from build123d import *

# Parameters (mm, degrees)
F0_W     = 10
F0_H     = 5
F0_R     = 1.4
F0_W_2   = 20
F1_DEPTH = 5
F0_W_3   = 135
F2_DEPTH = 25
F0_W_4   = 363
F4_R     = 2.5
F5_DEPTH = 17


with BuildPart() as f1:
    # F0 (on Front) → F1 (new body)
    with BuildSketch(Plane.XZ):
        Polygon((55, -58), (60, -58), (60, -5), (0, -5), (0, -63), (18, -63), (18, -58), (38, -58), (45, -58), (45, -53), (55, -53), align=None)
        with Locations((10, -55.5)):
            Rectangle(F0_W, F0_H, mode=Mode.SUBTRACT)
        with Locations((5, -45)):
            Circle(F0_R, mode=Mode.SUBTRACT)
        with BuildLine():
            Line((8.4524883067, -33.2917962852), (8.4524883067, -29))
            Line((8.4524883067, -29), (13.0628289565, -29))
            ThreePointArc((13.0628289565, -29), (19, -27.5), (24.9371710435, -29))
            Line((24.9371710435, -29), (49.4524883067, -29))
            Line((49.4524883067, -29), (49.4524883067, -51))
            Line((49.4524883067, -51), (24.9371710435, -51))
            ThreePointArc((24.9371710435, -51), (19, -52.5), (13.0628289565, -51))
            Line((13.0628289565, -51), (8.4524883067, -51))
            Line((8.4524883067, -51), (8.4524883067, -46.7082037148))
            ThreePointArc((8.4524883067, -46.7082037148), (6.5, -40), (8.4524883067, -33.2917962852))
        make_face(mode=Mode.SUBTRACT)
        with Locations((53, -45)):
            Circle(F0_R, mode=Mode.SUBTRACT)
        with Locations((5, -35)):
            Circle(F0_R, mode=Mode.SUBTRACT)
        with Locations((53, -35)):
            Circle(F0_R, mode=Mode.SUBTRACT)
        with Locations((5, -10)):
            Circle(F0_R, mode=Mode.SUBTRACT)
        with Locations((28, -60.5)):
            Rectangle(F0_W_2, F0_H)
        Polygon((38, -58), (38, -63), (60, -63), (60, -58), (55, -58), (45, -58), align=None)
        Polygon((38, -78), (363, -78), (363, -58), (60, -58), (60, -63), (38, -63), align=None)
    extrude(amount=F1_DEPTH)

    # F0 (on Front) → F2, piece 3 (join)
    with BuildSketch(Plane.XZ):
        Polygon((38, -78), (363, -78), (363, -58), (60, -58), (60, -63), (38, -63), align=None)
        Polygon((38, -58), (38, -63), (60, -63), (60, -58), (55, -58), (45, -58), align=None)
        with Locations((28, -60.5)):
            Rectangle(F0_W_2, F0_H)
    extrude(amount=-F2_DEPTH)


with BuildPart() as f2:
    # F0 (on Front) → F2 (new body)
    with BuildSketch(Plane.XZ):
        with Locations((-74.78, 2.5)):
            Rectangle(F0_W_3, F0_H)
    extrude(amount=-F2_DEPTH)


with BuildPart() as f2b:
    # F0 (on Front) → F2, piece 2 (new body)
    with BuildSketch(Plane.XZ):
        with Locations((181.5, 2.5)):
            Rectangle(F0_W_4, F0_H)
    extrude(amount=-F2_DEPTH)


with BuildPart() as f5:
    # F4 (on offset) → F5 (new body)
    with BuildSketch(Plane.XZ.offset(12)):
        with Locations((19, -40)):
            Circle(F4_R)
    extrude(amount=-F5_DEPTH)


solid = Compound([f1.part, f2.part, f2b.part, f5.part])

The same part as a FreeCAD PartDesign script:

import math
import FreeCAD as App
import Part
import Sketcher

V = App.Vector


def add_polygon(sketch, points):
    """Adds a closed chain of lines whose ends are joined by coincident constraints."""
    first, n = sketch.GeometryCount, len(points)
    for a, b in zip(points, points[1:] + points[:1]):
        sketch.addGeometry(Part.LineSegment(App.Vector(*a, 0), App.Vector(*b, 0)), False)
    for i in range(n):
        sketch.addConstraint(Sketcher.Constraint("Coincident", first + i, 2, first + (i + 1) % n, 1))

doc = App.newDocument("Part")
body = doc.addObject("PartDesign::Body", "Body")

# Sketch on XZ plane
sketch1 = body.newObject("Sketcher::SketchObject", "Sketch")
sketch1.AttachmentSupport = (doc.getObject("XZ_Plane"), [""])
sketch1.MapMode = "FlatFace"
add_polygon(sketch1, [(60, -5), (0, -5), (0, -63), (38, -63), (38, -78), (363, -78), (363, -58), (60, -58)])  # lines 0-7
add_polygon(sketch1, [(45, -58), (45, -53), (55, -53), (55, -58)])  # lines 8-11
add_polygon(sketch1, [(15, -58), (5, -58), (5, -53), (15, -53)])  # lines 12-15
sketch1.addGeometry(Part.Circle(V(5, -45, 0), V(0, 0, 1), 1.4), False)  # 16
sketch1.addGeometry(Part.Circle(V(5, -35, 0), V(0, 0, 1), 1.4), False)  # 17
sketch1.addGeometry(Part.ArcOfCircle(Part.Circle(V(19, -40, 0), V(0, 0, 1), 12.5), math.radians(148), math.radians(212)), False)  # 18
sketch1.addGeometry(Part.LineSegment(V(8.5, -33.3, 0), V(8.5, -29, 0)), False)  # 19
sketch1.addGeometry(Part.LineSegment(V(8.5, -29, 0), V(13.1, -29, 0)), False)  # 20
sketch1.addGeometry(Part.ArcOfCircle(Part.Circle(V(19, -40, 0), V(0, 0, 1), 12.5), math.radians(62), math.radians(118)), False)  # 21
sketch1.addGeometry(Part.LineSegment(V(24.9, -29, 0), V(49.5, -29, 0)), False)  # 22
sketch1.addGeometry(Part.LineSegment(V(49.5, -29, 0), V(49.5, -51, 0)), False)  # 23
sketch1.addGeometry(Part.LineSegment(V(49.5, -51, 0), V(24.9, -51, 0)), False)  # 24
sketch1.addGeometry(Part.ArcOfCircle(Part.Circle(V(19, -40, 0), V(0, 0, 1), 12.5), math.radians(-118), math.radians(-62)), False)  # 25
sketch1.addGeometry(Part.LineSegment(V(13.1, -51, 0), V(8.5, -51, 0)), False)  # 26
sketch1.addGeometry(Part.LineSegment(V(8.5, -51, 0), V(8.5, -46.7, 0)), False)  # 27
sketch1.addGeometry(Part.Circle(V(53, -45, 0), V(0, 0, 1), 1.4), False)  # 28
sketch1.addGeometry(Part.Circle(V(53, -35, 0), V(0, 0, 1), 1.4), False)  # 29
sketch1.addGeometry(Part.Circle(V(5, -10, 0), V(0, 0, 1), 1.4), False)  # 30
sketch1.addConstraint([
    Sketcher.Constraint("Coincident", 18, 1, 19, 1),
    Sketcher.Constraint("Coincident", 19, 2, 20, 1),
    Sketcher.Constraint("Coincident", 20, 2, 21, 2),
    Sketcher.Constraint("Coincident", 21, 1, 22, 1),
    Sketcher.Constraint("Coincident", 22, 2, 23, 1),
    Sketcher.Constraint("Coincident", 23, 2, 24, 1),
    Sketcher.Constraint("Coincident", 24, 2, 25, 2),
    Sketcher.Constraint("Coincident", 25, 1, 26, 1),
    Sketcher.Constraint("Coincident", 26, 2, 27, 1),
    Sketcher.Constraint("Coincident", 27, 2, 18, 2),
    Sketcher.Constraint("Horizontal", 0),
    Sketcher.Constraint("Vertical", 1),
    Sketcher.Constraint("Horizontal", 2),
    Sketcher.Constraint("Vertical", 3),
    Sketcher.Constraint("Horizontal", 4),
    Sketcher.Constraint("Vertical", 5),
    Sketcher.Constraint("Horizontal", 6),
    Sketcher.Constraint("Vertical", 7),
    Sketcher.Constraint("Vertical", 8),
    Sketcher.Constraint("Horizontal", 9),
    Sketcher.Constraint("Vertical", 10),
    Sketcher.Constraint("Horizontal", 11),
    Sketcher.Constraint("Horizontal", 12),
    Sketcher.Constraint("Vertical", 13),
    Sketcher.Constraint("Horizontal", 14),
    Sketcher.Constraint("Vertical", 15),
    Sketcher.Constraint("Vertical", 19),
    Sketcher.Constraint("Horizontal", 20),
    Sketcher.Constraint("Horizontal", 22),
    Sketcher.Constraint("Vertical", 23),
    Sketcher.Constraint("Horizontal", 24),
    Sketcher.Constraint("Horizontal", 26),
    Sketcher.Constraint("Vertical", 27),
    Sketcher.Constraint("Coincident", 21, 3, 18, 3),
    Sketcher.Constraint("Coincident", 25, 3, 18, 3),
    Sketcher.Constraint("Equal", 16, 17),
    Sketcher.Constraint("Equal", 18, 21),
    Sketcher.Constraint("Equal", 21, 25),
    Sketcher.Constraint("Equal", 17, 28),
    Sketcher.Constraint("Equal", 28, 29),
    Sketcher.Constraint("Equal", 29, 30),
    Sketcher.Constraint("PointOnObject", 0, 2, -2),
    Sketcher.Constraint("Horizontal", 16, 3, 28, 3),
    Sketcher.Constraint("Horizontal", 17, 3, 29, 3),
    Sketcher.Constraint("Horizontal", 6, 2, 10, 2),
    Sketcher.Constraint("Horizontal", 11, 2, 12, 2),
    Sketcher.Constraint("Horizontal", 9, 2, 13, 2),
    Sketcher.Constraint("Horizontal", 20, 2, 21, 1),
    Sketcher.Constraint("Horizontal", 24, 2, 25, 1),
    Sketcher.Constraint("Vertical", 16, 3, 17, 3),
    Sketcher.Constraint("Vertical", 28, 3, 29, 3),
    Sketcher.Constraint("Vertical", 17, 3, 30, 3),
    Sketcher.Constraint("Vertical", 30, 3, 12, 2),
    Sketcher.Constraint("Vertical", 21, 1, 24, 2),
    Sketcher.Constraint("Vertical", 19, 2, 26, 2),
    Sketcher.Constraint("Equal", 11, 12),
    Sketcher.Constraint("Diameter", 16, 2.8),
    Sketcher.Constraint("Radius", 18, 12.5),
    Sketcher.Constraint("DistanceX", 0, 2, 0, 1, 60.0),
    Sketcher.Constraint("DistanceX", 2, 1, 2, 2, 38.0),
    Sketcher.Constraint("DistanceX", 4, 1, 4, 2, 325.0),
    Sketcher.Constraint("DistanceX", 9, 1, 9, 2, 10.0),
    Sketcher.Constraint("DistanceY", 1, 2, 1, 1, 58.0),
    Sketcher.Constraint("DistanceY", 3, 2, 3, 1, 15.0),
    Sketcher.Constraint("DistanceY", 5, 1, 5, 2, 20.0),
    Sketcher.Constraint("DistanceY", 8, 1, 8, 2, 5.0),
    Sketcher.Constraint("DistanceY", 23, 2, 23, 1, 22.0),
    Sketcher.Constraint("DistanceX", -1, 1, 16, 3, 5.0),
    Sketcher.Constraint("DistanceY", 16, 3, -1, 1, 45.0),
    Sketcher.Constraint("DistanceY", 17, 3, -1, 1, 35.0),
    Sketcher.Constraint("DistanceX", -1, 1, 18, 3, 19.0),
    Sketcher.Constraint("DistanceY", 18, 3, -1, 1, 40.0),
    Sketcher.Constraint("DistanceX", -1, 1, 28, 3, 53.0),
    Sketcher.Constraint("DistanceY", 30, 3, -1, 1, 10.0),
    Sketcher.Constraint("DistanceY", 0, 2, -1, 1, 5.0),
    Sketcher.Constraint("DistanceX", -1, 1, 8, 2, 45.0),
    Sketcher.Constraint("DistanceX", 20, 1, 20, 2, 4.610341),
    Sketcher.Constraint("DistanceX", 22, 1, 22, 2, 24.515317),
])
pad1 = body.newObject("PartDesign::Pad", "Pad")
pad1.Profile = sketch1
pad1.Length = 5

# Sketch on XZ plane
sketch2 = body.newObject("Sketcher::SketchObject", "Sketch001")
sketch2.AttachmentSupport = (doc.getObject("XZ_Plane"), [""])
sketch2.MapMode = "FlatFace"
add_polygon(sketch2, [(38, -78), (363, -78), (363, -58), (18, -58), (18, -63), (38, -63)])  # lines 0-5
sketch2.addConstraint([
    Sketcher.Constraint("Horizontal", 0),
    Sketcher.Constraint("Vertical", 1),
    Sketcher.Constraint("Horizontal", 2),
    Sketcher.Constraint("Vertical", 3),
    Sketcher.Constraint("Horizontal", 4),
    Sketcher.Constraint("Vertical", 5),
    Sketcher.Constraint("Equal", 4, 1),
    Sketcher.Constraint("DistanceX", 0, 1, 0, 2, 325.0),
    Sketcher.Constraint("DistanceX", 2, 2, 2, 1, 345.0),
    Sketcher.Constraint("DistanceY", 3, 2, 3, 1, 5.0),
    Sketcher.Constraint("DistanceX", -1, 1, 0, 2, 363.0),
    Sketcher.Constraint("DistanceY", 0, 2, -1, 1, 78.0),
])
pad2 = body.newObject("PartDesign::Pad", "Pad001")
pad2.Profile = sketch2
pad2.Length = 25
pad2.Reversed = True
body2 = doc.addObject("PartDesign::Body", "Body001")

# Sketch on XZ plane
sketch3 = body2.newObject("Sketcher::SketchObject", "Sketch002")
sketch3.AttachmentSupport = (doc.getObject("XZ_Plane001"), [""])
sketch3.MapMode = "FlatFace"
add_polygon(sketch3, [(-142, 5), (-142, 0), (-7, 0), (-7, 5)])  # lines 0-3
sketch3.addConstraint([
    Sketcher.Constraint("Vertical", 0),
    Sketcher.Constraint("Horizontal", 1),
    Sketcher.Constraint("Vertical", 2),
    Sketcher.Constraint("Horizontal", 3),
    Sketcher.Constraint("PointOnObject", 0, 2, -1),
    Sketcher.Constraint("DistanceX", 1, 1, 1, 2, 135.0),
    Sketcher.Constraint("DistanceY", 0, 2, 0, 1, 5.0),
    Sketcher.Constraint("DistanceX", 0, 2, -1, 1, 142.28),
])
pad3 = body2.newObject("PartDesign::Pad", "Pad002")
pad3.Profile = sketch3
pad3.Length = 25
pad3.Reversed = True
body3 = doc.addObject("PartDesign::Body", "Body002")

# Sketch on XZ plane
sketch4 = body3.newObject("Sketcher::SketchObject", "Sketch003")
sketch4.AttachmentSupport = (doc.getObject("XZ_Plane002"), [""])
sketch4.MapMode = "FlatFace"
add_polygon(sketch4, [(0, 5), (0, 0), (363, 0), (363, 5)])  # lines 0-3
sketch4.addConstraint([
    Sketcher.Constraint("Vertical", 0),
    Sketcher.Constraint("Horizontal", 1),
    Sketcher.Constraint("Vertical", 2),
    Sketcher.Constraint("Horizontal", 3),
    Sketcher.Constraint("Coincident", 0, 2, -1, 1),
    Sketcher.Constraint("DistanceX", 1, 1, 1, 2, 363.0),
    Sketcher.Constraint("DistanceY", 0, 2, 0, 1, 5.0),
])
pad4 = body3.newObject("PartDesign::Pad", "Pad003")
pad4.Profile = sketch4
pad4.Length = 25
pad4.Reversed = True
body4 = doc.addObject("PartDesign::Body", "Body003")

# Sketch on XZ plane
sketch5 = body4.newObject("Sketcher::SketchObject", "Sketch004")
sketch5.AttachmentSupport = (doc.getObject("XZ_Plane003"), [""])
sketch5.MapMode = "FlatFace"
sketch5.AttachmentOffset = App.Placement(V(0, 0, 12), App.Rotation())
sketch5.addGeometry(Part.Circle(V(19, -40, 0), V(0, 0, 1), 2.5), False)
sketch5.addConstraint([
    Sketcher.Constraint("Diameter", 0, 5.0),
    Sketcher.Constraint("DistanceX", -1, 1, 0, 3, 19.0),
    Sketcher.Constraint("DistanceY", 0, 3, -1, 1, 40.0),
])
pad5 = body4.newObject("PartDesign::Pad", "Pad004")
pad5.Profile = sketch5
pad5.Length = 17
pad5.Reversed = True

doc.recompute()
